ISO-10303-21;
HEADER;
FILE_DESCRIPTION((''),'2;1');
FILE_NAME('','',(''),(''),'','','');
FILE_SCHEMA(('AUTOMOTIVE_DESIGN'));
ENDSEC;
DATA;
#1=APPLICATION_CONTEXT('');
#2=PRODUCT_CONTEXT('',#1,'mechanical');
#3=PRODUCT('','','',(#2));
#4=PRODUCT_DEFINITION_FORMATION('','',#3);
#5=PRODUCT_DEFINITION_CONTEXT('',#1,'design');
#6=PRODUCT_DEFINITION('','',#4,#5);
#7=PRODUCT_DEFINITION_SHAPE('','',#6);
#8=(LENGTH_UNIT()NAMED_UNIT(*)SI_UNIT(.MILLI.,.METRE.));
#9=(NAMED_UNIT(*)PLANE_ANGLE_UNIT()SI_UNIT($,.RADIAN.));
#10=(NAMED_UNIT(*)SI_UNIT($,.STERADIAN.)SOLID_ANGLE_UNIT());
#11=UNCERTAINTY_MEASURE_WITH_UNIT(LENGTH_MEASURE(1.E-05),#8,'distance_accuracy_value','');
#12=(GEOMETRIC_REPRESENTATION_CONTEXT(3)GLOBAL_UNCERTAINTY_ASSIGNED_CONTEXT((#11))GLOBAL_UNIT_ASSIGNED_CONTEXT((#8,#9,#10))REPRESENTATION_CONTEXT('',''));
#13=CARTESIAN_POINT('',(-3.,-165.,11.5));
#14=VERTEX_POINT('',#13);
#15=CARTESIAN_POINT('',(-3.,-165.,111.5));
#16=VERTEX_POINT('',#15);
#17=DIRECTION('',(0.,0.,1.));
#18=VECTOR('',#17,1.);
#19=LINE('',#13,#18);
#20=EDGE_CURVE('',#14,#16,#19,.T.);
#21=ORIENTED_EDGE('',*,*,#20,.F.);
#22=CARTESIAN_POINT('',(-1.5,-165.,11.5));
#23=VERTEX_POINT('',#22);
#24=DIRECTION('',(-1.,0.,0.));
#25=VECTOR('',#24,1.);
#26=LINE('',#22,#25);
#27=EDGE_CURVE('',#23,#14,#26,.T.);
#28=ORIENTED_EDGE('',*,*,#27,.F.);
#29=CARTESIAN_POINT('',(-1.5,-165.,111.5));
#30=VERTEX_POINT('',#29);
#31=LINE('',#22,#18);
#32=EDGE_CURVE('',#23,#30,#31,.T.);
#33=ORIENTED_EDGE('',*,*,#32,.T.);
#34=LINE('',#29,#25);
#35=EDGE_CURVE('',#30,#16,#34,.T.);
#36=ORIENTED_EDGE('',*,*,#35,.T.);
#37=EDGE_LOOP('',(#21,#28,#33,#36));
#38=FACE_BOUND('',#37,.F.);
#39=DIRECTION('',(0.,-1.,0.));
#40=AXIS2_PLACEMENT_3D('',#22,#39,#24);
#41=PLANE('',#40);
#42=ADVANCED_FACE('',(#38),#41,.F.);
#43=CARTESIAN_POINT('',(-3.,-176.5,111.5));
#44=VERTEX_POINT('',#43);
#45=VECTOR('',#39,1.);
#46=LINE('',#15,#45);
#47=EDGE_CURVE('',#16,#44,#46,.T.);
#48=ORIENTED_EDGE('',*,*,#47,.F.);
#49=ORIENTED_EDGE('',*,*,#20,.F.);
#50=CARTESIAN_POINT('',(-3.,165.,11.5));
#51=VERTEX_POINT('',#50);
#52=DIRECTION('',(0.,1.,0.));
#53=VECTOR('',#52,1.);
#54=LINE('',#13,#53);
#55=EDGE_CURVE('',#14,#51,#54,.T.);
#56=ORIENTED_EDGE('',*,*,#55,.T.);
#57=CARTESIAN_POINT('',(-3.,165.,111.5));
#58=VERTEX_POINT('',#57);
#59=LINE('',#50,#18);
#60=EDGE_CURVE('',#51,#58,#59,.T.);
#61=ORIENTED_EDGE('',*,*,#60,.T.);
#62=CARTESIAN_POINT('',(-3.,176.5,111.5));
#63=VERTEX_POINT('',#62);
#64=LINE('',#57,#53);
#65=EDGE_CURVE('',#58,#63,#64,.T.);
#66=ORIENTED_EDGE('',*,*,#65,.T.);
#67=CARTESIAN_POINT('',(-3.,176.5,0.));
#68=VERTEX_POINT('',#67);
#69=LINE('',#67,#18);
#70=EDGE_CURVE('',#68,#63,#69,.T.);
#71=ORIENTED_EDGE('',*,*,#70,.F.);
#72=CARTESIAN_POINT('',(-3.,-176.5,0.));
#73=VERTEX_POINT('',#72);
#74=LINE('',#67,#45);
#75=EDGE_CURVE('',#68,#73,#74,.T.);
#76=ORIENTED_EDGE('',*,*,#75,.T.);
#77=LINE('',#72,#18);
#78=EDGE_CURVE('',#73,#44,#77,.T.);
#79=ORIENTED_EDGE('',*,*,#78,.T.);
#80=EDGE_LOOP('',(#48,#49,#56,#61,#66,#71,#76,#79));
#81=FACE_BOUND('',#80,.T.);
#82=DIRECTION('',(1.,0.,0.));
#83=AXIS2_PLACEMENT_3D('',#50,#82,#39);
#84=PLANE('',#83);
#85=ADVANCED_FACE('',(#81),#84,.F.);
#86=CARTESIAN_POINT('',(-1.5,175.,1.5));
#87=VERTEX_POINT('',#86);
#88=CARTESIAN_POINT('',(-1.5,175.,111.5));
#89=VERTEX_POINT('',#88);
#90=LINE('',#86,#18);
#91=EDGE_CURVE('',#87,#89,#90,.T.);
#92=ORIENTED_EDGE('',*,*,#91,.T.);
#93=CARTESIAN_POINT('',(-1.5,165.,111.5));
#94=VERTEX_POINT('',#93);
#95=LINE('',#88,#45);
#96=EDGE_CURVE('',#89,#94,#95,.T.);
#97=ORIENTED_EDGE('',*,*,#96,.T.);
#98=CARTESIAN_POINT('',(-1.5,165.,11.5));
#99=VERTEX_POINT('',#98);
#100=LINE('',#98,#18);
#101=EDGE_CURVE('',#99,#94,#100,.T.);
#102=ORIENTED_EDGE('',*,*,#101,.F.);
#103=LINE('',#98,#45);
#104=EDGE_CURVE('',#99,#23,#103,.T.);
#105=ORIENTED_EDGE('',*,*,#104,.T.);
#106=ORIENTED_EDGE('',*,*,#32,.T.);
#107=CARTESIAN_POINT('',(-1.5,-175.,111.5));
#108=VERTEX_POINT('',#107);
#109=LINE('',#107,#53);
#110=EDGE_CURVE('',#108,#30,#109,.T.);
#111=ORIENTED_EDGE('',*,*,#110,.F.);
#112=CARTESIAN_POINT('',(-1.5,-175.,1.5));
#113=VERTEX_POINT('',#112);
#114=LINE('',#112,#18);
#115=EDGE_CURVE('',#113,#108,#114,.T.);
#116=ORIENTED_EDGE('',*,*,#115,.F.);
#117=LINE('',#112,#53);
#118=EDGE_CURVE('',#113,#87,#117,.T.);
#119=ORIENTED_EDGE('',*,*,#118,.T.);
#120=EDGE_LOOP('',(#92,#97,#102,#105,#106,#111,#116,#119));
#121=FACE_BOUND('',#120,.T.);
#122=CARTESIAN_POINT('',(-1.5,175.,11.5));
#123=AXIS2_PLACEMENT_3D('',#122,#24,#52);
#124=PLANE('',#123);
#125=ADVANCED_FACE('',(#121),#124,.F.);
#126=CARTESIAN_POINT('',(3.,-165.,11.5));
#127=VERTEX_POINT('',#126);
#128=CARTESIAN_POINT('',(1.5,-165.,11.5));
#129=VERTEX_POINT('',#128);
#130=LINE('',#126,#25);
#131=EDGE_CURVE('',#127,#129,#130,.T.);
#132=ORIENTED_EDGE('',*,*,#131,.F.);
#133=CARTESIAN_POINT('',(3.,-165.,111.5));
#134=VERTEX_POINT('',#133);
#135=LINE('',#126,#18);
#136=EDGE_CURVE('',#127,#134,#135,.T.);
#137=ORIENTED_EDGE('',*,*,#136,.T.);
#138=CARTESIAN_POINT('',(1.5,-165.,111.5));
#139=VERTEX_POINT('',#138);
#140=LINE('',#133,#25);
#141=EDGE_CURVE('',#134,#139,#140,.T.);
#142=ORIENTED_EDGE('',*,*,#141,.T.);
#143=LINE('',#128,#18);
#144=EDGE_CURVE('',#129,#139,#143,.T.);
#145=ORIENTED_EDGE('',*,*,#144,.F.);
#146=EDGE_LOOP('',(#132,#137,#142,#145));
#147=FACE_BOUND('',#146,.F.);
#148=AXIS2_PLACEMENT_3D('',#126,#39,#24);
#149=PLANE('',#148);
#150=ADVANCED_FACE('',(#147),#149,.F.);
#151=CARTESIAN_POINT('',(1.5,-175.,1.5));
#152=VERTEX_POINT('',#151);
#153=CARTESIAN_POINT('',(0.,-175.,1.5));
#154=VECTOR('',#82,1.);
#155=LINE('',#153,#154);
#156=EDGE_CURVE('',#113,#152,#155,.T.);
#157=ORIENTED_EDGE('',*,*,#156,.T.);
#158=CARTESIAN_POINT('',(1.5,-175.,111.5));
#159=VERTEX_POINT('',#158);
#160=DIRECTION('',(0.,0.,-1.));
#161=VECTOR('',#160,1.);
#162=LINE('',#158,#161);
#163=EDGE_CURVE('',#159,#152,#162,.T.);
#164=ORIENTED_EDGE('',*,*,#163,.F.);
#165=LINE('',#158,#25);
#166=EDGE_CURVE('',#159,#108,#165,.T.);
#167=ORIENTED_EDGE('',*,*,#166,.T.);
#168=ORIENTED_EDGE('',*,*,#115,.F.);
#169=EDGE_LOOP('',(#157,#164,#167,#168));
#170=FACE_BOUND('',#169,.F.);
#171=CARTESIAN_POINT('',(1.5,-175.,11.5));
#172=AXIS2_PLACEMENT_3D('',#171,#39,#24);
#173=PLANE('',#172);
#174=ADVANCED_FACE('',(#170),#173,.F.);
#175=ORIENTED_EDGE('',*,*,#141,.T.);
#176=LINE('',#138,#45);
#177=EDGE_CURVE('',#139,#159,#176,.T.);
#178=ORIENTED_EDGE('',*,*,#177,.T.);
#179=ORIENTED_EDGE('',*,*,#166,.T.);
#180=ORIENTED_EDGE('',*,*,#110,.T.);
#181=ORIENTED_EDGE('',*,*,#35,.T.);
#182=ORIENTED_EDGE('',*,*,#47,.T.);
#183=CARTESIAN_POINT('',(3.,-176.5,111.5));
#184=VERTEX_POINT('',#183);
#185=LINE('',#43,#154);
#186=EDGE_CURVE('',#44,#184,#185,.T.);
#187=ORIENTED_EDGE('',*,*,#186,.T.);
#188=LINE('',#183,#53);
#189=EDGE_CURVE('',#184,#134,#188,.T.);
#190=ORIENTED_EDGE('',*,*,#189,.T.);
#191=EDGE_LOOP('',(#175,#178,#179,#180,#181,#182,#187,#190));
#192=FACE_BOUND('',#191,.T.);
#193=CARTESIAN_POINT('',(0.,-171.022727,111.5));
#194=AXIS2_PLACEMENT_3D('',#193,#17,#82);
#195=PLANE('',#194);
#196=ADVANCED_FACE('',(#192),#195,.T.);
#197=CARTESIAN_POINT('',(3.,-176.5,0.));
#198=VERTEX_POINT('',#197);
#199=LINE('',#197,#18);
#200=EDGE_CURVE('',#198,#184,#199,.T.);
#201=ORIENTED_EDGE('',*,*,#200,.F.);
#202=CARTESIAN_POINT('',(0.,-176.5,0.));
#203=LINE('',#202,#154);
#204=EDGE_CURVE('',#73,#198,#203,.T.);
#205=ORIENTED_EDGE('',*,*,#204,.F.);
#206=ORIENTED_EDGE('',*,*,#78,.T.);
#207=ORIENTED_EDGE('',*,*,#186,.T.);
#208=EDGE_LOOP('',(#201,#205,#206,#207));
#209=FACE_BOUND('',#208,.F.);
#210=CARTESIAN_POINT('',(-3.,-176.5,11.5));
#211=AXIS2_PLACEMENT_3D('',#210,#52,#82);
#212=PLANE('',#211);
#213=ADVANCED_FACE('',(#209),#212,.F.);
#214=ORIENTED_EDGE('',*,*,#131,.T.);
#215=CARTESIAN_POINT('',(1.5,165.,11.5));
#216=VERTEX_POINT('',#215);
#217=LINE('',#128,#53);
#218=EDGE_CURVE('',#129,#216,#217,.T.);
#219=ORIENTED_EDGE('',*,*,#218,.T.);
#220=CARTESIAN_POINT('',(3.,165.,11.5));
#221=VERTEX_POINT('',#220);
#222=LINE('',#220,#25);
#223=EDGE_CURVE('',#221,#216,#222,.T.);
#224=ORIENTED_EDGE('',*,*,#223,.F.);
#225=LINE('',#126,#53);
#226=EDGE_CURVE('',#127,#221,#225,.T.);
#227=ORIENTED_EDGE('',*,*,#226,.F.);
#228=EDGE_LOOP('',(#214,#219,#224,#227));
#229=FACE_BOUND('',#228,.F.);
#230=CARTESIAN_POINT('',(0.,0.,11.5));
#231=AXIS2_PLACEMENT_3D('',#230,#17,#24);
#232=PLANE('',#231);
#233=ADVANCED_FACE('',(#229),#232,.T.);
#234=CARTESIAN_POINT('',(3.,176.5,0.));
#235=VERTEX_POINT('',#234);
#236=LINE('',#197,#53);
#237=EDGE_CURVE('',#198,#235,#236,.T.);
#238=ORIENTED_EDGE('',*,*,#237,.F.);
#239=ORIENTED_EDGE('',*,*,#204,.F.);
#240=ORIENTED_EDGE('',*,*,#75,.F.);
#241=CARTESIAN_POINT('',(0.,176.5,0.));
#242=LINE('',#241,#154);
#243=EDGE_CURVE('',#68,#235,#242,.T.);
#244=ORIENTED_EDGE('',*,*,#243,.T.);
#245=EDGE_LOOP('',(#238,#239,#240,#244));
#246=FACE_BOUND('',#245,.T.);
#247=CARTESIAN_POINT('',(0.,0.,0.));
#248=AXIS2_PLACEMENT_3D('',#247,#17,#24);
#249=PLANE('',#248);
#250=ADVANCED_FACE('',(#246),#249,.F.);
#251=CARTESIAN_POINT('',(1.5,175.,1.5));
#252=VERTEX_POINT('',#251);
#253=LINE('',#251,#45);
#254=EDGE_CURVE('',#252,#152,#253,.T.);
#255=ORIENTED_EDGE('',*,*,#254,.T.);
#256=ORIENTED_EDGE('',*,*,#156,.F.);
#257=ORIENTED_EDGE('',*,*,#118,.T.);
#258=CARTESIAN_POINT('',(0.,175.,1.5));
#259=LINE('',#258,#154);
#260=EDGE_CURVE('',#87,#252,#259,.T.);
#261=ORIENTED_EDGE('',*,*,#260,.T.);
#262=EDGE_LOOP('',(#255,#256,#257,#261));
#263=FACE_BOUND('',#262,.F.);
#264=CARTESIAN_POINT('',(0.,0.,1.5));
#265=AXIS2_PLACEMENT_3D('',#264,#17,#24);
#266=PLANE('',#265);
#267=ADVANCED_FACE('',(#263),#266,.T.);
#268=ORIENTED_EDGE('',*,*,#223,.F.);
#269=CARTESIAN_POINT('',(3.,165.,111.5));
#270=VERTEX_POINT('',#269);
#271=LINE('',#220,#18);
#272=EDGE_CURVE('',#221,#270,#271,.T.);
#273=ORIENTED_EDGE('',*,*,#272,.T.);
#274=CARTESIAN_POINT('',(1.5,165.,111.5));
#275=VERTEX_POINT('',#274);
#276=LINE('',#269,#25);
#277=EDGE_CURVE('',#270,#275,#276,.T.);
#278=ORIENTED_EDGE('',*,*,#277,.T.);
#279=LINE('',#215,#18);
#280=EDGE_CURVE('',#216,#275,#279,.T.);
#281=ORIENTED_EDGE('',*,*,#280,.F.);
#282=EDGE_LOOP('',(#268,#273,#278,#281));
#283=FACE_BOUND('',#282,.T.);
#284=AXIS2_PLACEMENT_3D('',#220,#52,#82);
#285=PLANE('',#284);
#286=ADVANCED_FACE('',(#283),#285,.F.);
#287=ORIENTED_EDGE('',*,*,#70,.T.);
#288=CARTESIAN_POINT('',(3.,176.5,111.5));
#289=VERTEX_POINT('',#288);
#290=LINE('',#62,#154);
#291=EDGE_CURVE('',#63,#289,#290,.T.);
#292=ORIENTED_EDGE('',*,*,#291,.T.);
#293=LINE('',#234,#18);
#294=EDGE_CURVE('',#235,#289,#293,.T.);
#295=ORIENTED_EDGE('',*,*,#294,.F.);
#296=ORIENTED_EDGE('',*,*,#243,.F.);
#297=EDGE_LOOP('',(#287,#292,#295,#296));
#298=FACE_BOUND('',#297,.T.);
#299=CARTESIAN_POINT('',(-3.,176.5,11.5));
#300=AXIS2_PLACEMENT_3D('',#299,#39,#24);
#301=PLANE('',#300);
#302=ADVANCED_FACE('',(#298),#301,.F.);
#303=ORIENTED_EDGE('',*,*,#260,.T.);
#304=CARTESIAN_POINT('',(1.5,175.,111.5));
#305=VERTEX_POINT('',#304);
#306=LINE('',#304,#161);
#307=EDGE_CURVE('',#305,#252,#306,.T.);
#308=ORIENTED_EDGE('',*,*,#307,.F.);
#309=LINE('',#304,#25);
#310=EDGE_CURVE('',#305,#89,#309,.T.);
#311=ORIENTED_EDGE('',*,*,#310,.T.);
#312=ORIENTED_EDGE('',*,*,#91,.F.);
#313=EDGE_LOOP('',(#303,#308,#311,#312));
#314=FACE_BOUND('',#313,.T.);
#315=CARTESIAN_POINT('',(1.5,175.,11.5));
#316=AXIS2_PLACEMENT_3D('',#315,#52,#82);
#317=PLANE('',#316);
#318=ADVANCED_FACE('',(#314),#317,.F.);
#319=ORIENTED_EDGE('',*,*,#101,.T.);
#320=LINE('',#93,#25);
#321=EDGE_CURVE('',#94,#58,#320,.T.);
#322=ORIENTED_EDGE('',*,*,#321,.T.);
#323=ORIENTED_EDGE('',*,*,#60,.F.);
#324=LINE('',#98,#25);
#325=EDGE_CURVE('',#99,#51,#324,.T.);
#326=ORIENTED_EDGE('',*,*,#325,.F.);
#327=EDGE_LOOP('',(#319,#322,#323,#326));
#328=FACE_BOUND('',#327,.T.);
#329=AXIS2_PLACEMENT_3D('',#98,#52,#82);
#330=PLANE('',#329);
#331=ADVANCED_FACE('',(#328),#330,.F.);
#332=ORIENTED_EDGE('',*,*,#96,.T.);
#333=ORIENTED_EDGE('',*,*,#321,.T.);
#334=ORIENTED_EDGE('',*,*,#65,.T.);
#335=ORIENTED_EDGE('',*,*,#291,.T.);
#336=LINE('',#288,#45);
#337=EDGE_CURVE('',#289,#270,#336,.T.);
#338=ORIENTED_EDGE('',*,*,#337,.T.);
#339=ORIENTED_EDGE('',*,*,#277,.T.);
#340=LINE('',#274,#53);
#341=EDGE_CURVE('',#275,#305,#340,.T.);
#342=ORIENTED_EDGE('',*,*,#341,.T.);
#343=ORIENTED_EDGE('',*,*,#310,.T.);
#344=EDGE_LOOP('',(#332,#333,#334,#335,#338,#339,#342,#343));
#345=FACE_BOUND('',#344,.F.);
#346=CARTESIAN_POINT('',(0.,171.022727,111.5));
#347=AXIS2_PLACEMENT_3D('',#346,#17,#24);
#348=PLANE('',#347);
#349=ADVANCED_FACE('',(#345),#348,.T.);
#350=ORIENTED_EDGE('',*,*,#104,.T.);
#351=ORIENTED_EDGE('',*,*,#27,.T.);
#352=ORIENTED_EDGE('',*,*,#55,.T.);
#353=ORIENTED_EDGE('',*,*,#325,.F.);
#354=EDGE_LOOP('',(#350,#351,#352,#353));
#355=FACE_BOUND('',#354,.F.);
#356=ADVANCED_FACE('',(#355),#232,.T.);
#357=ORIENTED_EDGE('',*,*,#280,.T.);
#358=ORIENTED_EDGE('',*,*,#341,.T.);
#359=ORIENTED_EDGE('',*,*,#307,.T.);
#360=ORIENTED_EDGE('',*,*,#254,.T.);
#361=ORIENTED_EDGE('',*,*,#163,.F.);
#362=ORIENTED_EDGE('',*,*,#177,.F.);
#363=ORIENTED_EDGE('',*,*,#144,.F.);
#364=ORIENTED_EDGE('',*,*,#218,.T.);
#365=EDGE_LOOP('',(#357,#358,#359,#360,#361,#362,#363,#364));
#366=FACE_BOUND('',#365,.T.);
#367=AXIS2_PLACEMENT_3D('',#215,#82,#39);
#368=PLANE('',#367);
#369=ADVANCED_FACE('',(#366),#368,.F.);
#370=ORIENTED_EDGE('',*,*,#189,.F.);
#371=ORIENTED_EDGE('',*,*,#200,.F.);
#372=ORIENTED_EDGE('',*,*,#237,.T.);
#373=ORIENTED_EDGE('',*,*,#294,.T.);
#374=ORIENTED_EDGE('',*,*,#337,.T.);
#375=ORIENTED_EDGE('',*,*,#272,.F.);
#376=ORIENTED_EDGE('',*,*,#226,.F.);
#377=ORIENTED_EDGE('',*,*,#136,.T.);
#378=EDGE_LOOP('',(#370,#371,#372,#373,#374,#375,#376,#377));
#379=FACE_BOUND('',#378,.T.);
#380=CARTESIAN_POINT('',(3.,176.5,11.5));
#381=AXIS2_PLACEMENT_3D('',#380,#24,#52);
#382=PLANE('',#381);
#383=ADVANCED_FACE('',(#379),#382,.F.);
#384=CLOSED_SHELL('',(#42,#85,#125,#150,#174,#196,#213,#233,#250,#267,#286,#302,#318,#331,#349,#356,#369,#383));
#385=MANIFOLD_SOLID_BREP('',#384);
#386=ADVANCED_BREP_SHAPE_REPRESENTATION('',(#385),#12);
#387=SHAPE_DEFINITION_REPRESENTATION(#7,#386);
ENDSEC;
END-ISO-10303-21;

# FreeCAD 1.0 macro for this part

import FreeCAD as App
import Part
import Sketcher

V = App.Vector
Q = App.Units.Quantity


def add_polygon(sketch, points):
    """Adds a closed chain of lines whose ends are joined by coincident constraints."""
    first, n = sketch.GeometryCount, len(points)
    for a, b in zip(points, points[1:] + points[:1]):
        sketch.addGeometry(Part.LineSegment(App.Vector(*a, 0), App.Vector(*b, 0)), False)
    for i in range(n):
        sketch.addConstraint(Sketcher.Constraint("Coincident", first + i, 2, first + (i + 1) % n, 1))

doc = App.newDocument("Part")
body = doc.addObject("PartDesign::Body", "Body")

# Sketch on XY plane
sketch1 = body.newObject("Sketcher::SketchObject", "Sketch")
sketch1.AttachmentSupport = (doc.getObject("XY_Plane"), [""])
sketch1.MapMode = "FlatFace"
add_polygon(sketch1, [(-3, 176), (-3, -176), (3, -176), (3, 176)])  # lines 0-3
sketch1.addConstraint([
    Sketcher.Constraint("Vertical", 0),
    Sketcher.Constraint("Horizontal", 1),
    Sketcher.Constraint("Vertical", 2),
    Sketcher.Constraint("Horizontal", 3),
    Sketcher.Constraint("Symmetric", 0, 2, 2, 2, -1, 1),
    Sketcher.Constraint("DistanceX", 1, 1, 1, 2, Q("6 mm")),
    Sketcher.Constraint("DistanceY", 0, 2, 0, 1, Q("353 mm")),
])
pad1 = body.newObject("PartDesign::Pad", "Pad")
pad1.Profile = sketch1
pad1.Length = 1.5

# Sketch on XY plane
sketch2 = body.newObject("Sketcher::SketchObject", "Sketch001")
sketch2.AttachmentSupport = (doc.getObject("XY_Plane"), [""])
sketch2.MapMode = "FlatFace"
sketch2.AttachmentOffset = App.Placement(V(0, 0, 1.5), App.Rotation())
add_polygon(sketch2, [(-3, 176.5), (-3, -176.5), (3, -176.5), (3, 176.5)])  # lines 0-3
add_polygon(sketch2, [(1.5, -175), (-1.5, -175), (-1.5, 175), (1.5, 175)])  # lines 4-7
sketch2.addConstraint([
    Sketcher.Constraint("Vertical", 0),
    Sketcher.Constraint("Horizontal", 1),
    Sketcher.Constraint("Vertical", 2),
    Sketcher.Constraint("Horizontal", 3),
    Sketcher.Constraint("Horizontal", 4),
    Sketcher.Constraint("Vertical", 5),
    Sketcher.Constraint("Horizontal", 6),
    Sketcher.Constraint("Vertical", 7),
    Sketcher.Constraint("Symmetric", 0, 2, 2, 2, -1, 1),
    Sketcher.Constraint("Symmetric", 4, 2, 6, 2, -1, 1),
    Sketcher.Constraint("DistanceX", 1, 1, 1, 2, Q("6 mm")),
    Sketcher.Constraint("DistanceX", 4, 2, 4, 1, Q("3 mm")),
    Sketcher.Constraint("DistanceY", 0, 2, 0, 1, Q("353 mm")),
    Sketcher.Constraint("DistanceY", 5, 1, 5, 2, Q("350 mm")),
])
pad2 = body.newObject("PartDesign::Pad", "Pad001")
pad2.Profile = sketch2
pad2.Length = 10

# Sketch on XY plane
sketch3 = body.newObject("Sketcher::SketchObject", "Sketch002")
sketch3.AttachmentSupport = (doc.getObject("XY_Plane"), [""])
sketch3.MapMode = "FlatFace"
sketch3.AttachmentOffset = App.Placement(V(0, 0, 11.5), App.Rotation())
add_polygon(sketch3, [(1.5, -175), (-1.5, -175), (-1.5, -165), (-3, -165), (-3, -176.5), (3, -176.5), (3, -165), (1.5, -165)])  # lines 0-7
sketch3.addConstraint([
    Sketcher.Constraint("Horizontal", 0),
    Sketcher.Constraint("Vertical", 1),
    Sketcher.Constraint("Horizontal", 2),
    Sketcher.Constraint("Vertical", 3),
    Sketcher.Constraint("Horizontal", 4),
    Sketcher.Constraint("Vertical", 5),
    Sketcher.Constraint("Horizontal", 6),
    Sketcher.Constraint("Vertical", 7),
    Sketcher.Constraint("Symmetric", 2, 2, 5, 2, -2),
    Sketcher.Constraint("Equal", 2, 6),
    Sketcher.Constraint("DistanceX", 0, 2, 0, 1, Q("3 mm")),
    Sketcher.Constraint("DistanceX", 4, 1, 4, 2, Q("6 mm")),
    Sketcher.Constraint("DistanceY", 1, 1, 1, 2, Q("10 mm")),
    Sketcher.Constraint("DistanceY", 3, 2, 3, 1, Q("11.5 mm")),
    Sketcher.Constraint("DistanceY", 0, 2, -1, 1, Q("175 mm")),
])
pad3 = body.newObject("PartDesign::Pad", "Pad002")
pad3.Profile = sketch3
pad3.Length = 100

# Sketch on YZ plane
sketch4 = body.newObject("Sketcher::SketchObject", "Sketch003")
sketch4.AttachmentSupport = (doc.getObject("YZ_Plane"), [""])
sketch4.MapMode = "FlatFace"
sketch4.AttachmentOffset = App.Placement(V(0, 0, 3), App.Rotation())
add_polygon(sketch4, [(0, 47), (0, 0), (229, 0), (229, 47)])  # lines 0-3
sketch4.addConstraint([
    Sketcher.Constraint("Vertical", 0),
    Sketcher.Constraint("Horizontal", 1),
    Sketcher.Constraint("Vertical", 2),
    Sketcher.Constraint("Horizontal", 3),
    Sketcher.Constraint("Coincident", 0, 2, -1, 1),
    Sketcher.Constraint("DistanceX", 1, 1, 1, 2, Q("228.872508 mm")),
    Sketcher.Constraint("DistanceY", 0, 2, 0, 1, Q("47.288619 mm")),
])
pocket1 = body.newObject("PartDesign::Pocket", "Pocket")
pocket1.Profile = sketch4
pocket1.Length = 25
body2 = doc.addObject("PartDesign::Body", "Body001")
doc.recompute()

body2.BaseFeature = body
doc.recompute()

mirroring = doc.addObject("Part::Mirroring", "Mirroring")
mirroring.Source = body
mirroring.Base = V(0, 0, 0)
mirroring.Normal = V(0, -1, 0)
body3 = doc.addObject("PartDesign::Body", "Body002")
body3.BaseFeature = mirroring
boolean = body2.newObject("PartDesign::Boolean", "Boolean")
boolean.Type = "Fuse"
boolean.addObjects([body3])
doc.recompute()
mirroring.Visibility = False

doc.recompute()
